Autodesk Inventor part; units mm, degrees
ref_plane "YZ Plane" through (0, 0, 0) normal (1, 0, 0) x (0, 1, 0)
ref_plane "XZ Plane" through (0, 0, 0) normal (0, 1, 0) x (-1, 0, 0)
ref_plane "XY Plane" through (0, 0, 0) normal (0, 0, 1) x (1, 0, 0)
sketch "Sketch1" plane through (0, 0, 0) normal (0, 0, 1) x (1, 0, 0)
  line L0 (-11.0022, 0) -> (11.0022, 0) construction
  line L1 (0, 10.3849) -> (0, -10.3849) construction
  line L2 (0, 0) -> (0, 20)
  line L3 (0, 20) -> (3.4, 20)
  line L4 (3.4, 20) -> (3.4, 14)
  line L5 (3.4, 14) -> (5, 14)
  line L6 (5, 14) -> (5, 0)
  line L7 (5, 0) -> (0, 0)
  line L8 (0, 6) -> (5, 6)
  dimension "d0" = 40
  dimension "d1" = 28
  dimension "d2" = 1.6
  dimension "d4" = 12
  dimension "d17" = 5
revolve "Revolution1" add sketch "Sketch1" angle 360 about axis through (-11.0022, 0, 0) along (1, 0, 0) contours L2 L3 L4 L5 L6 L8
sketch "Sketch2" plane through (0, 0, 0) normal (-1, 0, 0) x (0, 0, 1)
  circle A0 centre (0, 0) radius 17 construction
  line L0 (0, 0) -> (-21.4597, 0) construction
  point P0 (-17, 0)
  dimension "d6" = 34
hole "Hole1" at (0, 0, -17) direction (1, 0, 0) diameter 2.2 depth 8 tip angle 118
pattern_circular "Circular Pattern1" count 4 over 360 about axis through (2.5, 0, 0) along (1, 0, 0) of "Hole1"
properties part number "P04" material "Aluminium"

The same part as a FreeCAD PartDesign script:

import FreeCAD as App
import Part
import Sketcher
Q = App.Units.Quantity


def add_polygon(sketch, points):
    """Adds a closed chain of lines whose ends are joined by coincident constraints."""
    first, n = sketch.GeometryCount, len(points)
    for a, b in zip(points, points[1:] + points[:1]):
        sketch.addGeometry(Part.LineSegment(App.Vector(*a, 0), App.Vector(*b, 0)), False)
    for i in range(n):
        sketch.addConstraint(Sketcher.Constraint("Coincident", first + i, 2, first + (i + 1) % n, 1))

doc = App.newDocument("Part")
body = doc.addObject("PartDesign::Body", "Body")

# Sketch on XY plane
sketch1 = body.newObject("Sketcher::SketchObject", "Sketch")
sketch1.AttachmentSupport = (doc.getObject("XY_Plane"), [""])
sketch1.MapMode = "FlatFace"
add_polygon(sketch1, [(0, 20), (0, 6), (5, 6), (5, 14), (3.4, 14), (3.4, 20)])  # lines 0-5
sketch1.addConstraint([
    Sketcher.Constraint("Vertical", 0),
    Sketcher.Constraint("Horizontal", 1),
    Sketcher.Constraint("Vertical", 2),
    Sketcher.Constraint("Horizontal", 3),
    Sketcher.Constraint("Vertical", 4),
    Sketcher.Constraint("Horizontal", 5),
    Sketcher.Constraint("PointOnObject", 0, 2, -2),
    Sketcher.Constraint("DistanceX", 1, 1, 1, 2, Q("5 mm")),
    Sketcher.Constraint("DistanceX", 3, 2, 3, 1, Q("1.6 mm")),
    Sketcher.Constraint("DistanceY", 0, 2, 0, 1, Q("14 mm")),
    Sketcher.Constraint("DistanceY", 2, 1, 2, 2, Q("8 mm")),
    Sketcher.Constraint("DistanceY", -1, 1, 0, 2, Q("6 mm")),
])
revolution = body.newObject("PartDesign::Revolution", "Revolution")
revolution.Profile = sketch1
revolution.ReferenceAxis = (sketch1, ["H_Axis"])
revolution.Angle = 360

# Sketch on YZ plane
sketch2 = body.newObject("Sketcher::SketchObject", "Sketch001")
sketch2.AttachmentSupport = (doc.getObject("YZ_Plane"), [""])
sketch2.MapMode = "FlatFace"
sketch2.addGeometry(Part.Circle(App.Vector(0, -17, 0), App.Vector(0, 0, 1), 1.1), False)
sketch2.addConstraint([
    Sketcher.Constraint("PointOnObject", 0, 3, -2),
    Sketcher.Constraint("Diameter", 0, Q("2.2 mm")),
    Sketcher.Constraint("DistanceY", 0, 3, -1, 1, Q("17 mm")),
])
doc.recompute()
hole = body.newObject("PartDesign::Hole", "Hole")
hole.Profile = sketch2
hole.ThreadType = "None"
hole.Diameter = 2.2
hole.DepthType = "Dimension"
hole.Depth = 8
hole.DrillPoint = "Angled"
hole.DrillPointAngle = 118
hole.Reversed = True
doc.recompute()

polarpattern = body.newObject("PartDesign::PolarPattern", "PolarPattern")
polarpattern.Originals = [hole]
polarpattern.Axis = (doc.getObject("X_Axis"), [""])
polarpattern.Angle = 360
polarpattern.Occurrences = 4
body.Tip = polarpattern

doc.recompute()
